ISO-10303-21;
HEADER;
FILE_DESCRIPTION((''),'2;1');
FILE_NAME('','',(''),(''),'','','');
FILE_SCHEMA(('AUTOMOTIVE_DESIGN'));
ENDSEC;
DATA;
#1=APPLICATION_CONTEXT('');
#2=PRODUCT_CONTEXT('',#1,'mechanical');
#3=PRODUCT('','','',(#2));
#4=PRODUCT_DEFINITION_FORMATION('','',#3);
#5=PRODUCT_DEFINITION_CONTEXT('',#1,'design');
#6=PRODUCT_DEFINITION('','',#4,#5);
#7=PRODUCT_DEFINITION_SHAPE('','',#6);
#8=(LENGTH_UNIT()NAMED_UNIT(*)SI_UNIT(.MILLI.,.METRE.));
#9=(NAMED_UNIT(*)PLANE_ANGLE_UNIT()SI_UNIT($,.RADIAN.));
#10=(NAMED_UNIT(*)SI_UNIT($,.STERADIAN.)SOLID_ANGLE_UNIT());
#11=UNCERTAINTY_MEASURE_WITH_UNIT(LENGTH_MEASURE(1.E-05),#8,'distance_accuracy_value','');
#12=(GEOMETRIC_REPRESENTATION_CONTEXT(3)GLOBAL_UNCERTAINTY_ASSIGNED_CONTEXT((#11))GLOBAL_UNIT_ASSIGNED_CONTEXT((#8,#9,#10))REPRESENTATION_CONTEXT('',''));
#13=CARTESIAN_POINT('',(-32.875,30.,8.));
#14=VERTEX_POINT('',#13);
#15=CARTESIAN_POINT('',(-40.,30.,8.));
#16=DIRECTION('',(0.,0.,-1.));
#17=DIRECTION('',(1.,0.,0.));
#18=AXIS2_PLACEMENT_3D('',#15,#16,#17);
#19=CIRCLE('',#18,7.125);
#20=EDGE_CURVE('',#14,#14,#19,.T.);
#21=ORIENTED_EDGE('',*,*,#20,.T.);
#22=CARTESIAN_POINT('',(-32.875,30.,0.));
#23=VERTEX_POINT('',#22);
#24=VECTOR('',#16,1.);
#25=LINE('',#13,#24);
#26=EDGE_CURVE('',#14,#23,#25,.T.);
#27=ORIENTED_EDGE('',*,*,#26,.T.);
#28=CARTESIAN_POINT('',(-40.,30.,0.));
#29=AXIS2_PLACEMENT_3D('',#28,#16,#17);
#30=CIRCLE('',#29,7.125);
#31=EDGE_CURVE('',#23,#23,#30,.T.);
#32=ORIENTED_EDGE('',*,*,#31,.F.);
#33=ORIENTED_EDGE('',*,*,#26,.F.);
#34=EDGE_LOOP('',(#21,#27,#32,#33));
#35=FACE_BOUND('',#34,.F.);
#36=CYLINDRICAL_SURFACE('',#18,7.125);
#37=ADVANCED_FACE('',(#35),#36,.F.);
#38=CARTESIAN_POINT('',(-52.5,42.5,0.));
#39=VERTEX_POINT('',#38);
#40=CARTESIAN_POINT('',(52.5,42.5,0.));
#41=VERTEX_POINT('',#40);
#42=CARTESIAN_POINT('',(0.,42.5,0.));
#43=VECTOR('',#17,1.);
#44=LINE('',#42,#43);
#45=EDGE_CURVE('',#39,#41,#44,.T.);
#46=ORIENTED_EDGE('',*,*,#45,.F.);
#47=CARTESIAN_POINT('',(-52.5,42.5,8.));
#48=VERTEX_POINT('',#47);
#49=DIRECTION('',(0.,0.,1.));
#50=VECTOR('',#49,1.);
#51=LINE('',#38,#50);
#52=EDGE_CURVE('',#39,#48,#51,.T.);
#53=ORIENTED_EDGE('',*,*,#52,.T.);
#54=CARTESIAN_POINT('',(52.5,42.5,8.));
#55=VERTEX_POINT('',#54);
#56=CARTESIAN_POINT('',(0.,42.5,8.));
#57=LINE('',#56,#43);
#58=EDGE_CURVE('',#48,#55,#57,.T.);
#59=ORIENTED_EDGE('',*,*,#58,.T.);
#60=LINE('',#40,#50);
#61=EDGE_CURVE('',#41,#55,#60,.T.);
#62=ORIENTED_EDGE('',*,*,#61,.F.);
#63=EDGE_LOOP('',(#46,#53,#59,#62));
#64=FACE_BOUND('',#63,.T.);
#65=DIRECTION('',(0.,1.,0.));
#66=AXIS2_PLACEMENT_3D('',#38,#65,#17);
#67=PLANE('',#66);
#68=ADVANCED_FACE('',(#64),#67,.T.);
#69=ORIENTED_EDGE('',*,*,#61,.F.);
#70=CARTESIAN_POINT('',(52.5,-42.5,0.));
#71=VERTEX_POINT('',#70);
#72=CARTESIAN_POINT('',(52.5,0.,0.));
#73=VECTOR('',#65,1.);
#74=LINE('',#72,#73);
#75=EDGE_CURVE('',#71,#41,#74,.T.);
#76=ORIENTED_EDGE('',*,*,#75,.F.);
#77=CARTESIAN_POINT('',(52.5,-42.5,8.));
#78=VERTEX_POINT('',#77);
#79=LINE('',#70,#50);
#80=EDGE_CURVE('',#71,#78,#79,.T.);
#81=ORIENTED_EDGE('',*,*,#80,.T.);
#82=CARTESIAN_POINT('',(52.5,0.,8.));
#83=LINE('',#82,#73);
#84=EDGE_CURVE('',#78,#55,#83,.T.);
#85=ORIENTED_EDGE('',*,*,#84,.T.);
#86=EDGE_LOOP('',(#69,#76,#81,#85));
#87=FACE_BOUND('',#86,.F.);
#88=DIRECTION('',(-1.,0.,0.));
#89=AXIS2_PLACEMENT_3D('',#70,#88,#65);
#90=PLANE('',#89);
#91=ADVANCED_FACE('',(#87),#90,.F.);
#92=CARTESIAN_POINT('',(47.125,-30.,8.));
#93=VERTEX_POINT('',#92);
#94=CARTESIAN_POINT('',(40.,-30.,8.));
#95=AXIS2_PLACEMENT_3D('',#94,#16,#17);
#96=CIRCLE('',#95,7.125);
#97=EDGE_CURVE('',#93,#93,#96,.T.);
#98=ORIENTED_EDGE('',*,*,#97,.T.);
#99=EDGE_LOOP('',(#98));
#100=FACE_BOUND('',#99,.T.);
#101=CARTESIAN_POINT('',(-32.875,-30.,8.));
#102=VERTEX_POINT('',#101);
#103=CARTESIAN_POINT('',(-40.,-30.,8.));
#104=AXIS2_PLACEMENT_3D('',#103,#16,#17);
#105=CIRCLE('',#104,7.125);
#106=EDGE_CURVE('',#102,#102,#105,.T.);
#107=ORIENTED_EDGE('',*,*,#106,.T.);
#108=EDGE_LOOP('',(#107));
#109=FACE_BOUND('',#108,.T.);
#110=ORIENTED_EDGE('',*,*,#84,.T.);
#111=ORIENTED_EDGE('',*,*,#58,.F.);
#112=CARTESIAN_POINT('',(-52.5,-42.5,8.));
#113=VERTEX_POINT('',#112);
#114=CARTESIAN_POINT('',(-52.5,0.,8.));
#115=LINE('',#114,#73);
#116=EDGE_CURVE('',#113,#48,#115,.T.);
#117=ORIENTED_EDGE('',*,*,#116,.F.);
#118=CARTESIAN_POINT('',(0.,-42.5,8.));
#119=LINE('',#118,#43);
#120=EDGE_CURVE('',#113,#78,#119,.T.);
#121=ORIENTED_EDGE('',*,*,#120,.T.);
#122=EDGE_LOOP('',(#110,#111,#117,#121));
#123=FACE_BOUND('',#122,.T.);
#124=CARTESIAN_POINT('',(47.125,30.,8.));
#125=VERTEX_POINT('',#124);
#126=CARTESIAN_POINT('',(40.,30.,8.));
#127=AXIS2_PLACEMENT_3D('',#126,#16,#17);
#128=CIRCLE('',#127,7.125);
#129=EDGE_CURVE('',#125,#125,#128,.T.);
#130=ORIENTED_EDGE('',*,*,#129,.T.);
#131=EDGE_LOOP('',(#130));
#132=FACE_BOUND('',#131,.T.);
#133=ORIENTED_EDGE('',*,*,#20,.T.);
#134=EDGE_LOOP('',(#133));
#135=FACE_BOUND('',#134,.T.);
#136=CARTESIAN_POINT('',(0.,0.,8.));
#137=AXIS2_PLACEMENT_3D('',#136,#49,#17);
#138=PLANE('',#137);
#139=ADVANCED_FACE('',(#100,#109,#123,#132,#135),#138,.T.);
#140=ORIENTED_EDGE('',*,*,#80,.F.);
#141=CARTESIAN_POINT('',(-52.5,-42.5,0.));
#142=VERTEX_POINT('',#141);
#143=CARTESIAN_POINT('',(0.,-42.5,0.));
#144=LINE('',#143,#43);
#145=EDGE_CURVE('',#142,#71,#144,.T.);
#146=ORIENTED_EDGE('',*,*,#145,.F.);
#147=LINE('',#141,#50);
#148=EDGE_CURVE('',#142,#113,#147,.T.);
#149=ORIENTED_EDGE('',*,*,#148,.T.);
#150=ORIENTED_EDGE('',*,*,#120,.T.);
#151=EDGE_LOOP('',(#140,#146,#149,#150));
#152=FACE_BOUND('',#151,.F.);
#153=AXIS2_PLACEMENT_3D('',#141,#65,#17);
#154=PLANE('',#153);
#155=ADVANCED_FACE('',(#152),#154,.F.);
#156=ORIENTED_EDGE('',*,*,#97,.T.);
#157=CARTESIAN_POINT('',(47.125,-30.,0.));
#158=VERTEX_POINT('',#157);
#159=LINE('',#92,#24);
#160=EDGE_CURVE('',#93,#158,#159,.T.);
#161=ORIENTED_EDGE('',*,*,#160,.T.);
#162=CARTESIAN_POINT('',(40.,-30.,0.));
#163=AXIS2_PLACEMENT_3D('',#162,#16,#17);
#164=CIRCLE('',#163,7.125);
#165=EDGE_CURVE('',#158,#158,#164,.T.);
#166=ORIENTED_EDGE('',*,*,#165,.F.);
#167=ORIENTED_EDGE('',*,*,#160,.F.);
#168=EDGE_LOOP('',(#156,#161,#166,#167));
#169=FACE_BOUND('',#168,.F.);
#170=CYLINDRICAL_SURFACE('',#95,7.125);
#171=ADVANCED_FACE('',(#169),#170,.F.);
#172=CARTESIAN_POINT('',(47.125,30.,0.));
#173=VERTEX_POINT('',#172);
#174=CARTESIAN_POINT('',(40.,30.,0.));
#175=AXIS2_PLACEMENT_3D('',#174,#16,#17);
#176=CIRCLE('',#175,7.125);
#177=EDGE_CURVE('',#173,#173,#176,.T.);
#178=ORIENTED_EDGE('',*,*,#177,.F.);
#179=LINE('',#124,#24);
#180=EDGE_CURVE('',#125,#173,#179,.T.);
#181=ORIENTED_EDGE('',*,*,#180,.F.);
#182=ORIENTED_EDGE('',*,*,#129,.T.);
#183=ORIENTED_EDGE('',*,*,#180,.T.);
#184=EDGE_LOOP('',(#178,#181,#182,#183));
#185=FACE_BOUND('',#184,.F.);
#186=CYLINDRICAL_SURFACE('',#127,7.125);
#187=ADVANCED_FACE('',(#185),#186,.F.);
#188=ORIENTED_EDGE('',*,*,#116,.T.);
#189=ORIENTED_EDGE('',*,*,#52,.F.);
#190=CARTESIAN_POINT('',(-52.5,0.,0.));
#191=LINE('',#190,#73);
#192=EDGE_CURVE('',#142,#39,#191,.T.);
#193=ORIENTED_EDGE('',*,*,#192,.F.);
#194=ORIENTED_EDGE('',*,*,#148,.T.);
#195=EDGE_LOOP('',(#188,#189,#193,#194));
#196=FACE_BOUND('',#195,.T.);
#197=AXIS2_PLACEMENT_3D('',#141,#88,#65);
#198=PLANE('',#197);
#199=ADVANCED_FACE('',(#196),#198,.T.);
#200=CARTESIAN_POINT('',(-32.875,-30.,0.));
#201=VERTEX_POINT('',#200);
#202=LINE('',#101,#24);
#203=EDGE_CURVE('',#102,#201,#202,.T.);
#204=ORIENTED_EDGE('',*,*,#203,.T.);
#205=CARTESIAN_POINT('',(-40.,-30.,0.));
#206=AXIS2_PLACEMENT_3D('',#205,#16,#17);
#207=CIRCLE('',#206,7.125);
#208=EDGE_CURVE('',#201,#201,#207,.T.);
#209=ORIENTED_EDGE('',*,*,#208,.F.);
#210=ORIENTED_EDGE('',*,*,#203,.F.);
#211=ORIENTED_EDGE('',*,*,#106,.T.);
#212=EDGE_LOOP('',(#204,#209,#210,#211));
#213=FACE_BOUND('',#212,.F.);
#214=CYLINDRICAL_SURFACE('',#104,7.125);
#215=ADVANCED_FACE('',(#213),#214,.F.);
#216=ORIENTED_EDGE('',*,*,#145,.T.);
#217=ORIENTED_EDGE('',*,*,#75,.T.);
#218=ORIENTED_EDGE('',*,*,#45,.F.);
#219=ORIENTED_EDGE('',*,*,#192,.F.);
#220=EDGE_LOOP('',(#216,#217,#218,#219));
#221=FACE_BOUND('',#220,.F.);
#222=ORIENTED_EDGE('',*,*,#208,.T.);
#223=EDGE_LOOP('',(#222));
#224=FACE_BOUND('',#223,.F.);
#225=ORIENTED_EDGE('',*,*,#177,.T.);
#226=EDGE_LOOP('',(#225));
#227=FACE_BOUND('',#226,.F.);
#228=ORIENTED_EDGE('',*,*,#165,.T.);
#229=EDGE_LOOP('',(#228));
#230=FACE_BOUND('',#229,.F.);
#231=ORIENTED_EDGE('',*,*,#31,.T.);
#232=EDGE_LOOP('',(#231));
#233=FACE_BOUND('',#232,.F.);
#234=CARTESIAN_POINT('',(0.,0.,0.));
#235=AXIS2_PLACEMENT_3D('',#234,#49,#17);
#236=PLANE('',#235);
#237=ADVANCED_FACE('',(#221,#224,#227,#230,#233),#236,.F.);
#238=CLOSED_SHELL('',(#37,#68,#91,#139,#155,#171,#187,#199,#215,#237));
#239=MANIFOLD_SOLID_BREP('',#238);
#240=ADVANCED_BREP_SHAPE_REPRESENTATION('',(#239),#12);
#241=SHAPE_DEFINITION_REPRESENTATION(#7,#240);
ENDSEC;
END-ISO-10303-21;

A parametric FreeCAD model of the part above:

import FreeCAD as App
import Part
import Sketcher
from FreeCAD import Vector

doc = App.newDocument("Part")
body = doc.addObject("PartDesign::Body", "Body")

sketch1 = doc.addObject("Sketcher::SketchObject", "Sketch")
body.addObject(sketch1)
sketch1.AttachmentSupport = (doc.XY_Plane, [""])
sketch1.MapMode = "FlatFace"
sketch1.addGeometry([
    Part.LineSegment(Vector(-52, 42, 0), Vector(-52, -42, 0)),
    Part.LineSegment(Vector(-52, -42, 0), Vector(52, -42, 0)),
    Part.LineSegment(Vector(52, -42, 0), Vector(52, 42, 0)),
    Part.LineSegment(Vector(52, 42, 0), Vector(-52, 42, 0)),
], False)
sketch1.addConstraint([
    Sketcher.Constraint("Coincident", 0, 2, 1, 1),
    Sketcher.Constraint("Coincident", 1, 2, 2, 1),
    Sketcher.Constraint("Coincident", 2, 2, 3, 1),
    Sketcher.Constraint("Coincident", 3, 2, 0, 1),
    Sketcher.Constraint("Vertical", 0),
    Sketcher.Constraint("Horizontal", 1),
    Sketcher.Constraint("Vertical", 2),
    Sketcher.Constraint("Horizontal", 3),
    Sketcher.Constraint("Symmetric", 0, 2, 2, 2, -1, 1),
    Sketcher.Constraint("DistanceX", 1, 1, 1, 2, 105.0),
    Sketcher.Constraint("DistanceY", 0, 2, 0, 1, 85.0),
])
pad1 = doc.addObject("PartDesign::Pad", "Pad")
body.addObject(pad1)
pad1.Profile = sketch1
pad1.Length = 8

sketch2 = doc.addObject("Sketcher::SketchObject", "Sketch001")
body.addObject(sketch2)
sketch2.AttachmentSupport = (doc.XY_Plane, [""])
sketch2.MapMode = "FlatFace"
sketch2.addGeometry([
    Part.Circle(Vector(-40, 30, 0), Vector(0, 0, 1), 4.4),
    Part.Circle(Vector(40, 30, 0), Vector(0, 0, 1), 4.4),
    Part.Circle(Vector(40, -30, 0), Vector(0, 0, 1), 4.4),
    Part.Circle(Vector(-40, -30, 0), Vector(0, 0, 1), 4.4),
], False)
sketch2.addConstraint([
    Sketcher.Constraint("Equal", 0, 1),
    Sketcher.Constraint("Equal", 1, 2),
    Sketcher.Constraint("Equal", 2, 3),
    Sketcher.Constraint("Symmetric", 0, 3, 2, 3, -1, 1),
    Sketcher.Constraint("Symmetric", 1, 3, 3, 3, -1, 1),
    Sketcher.Constraint("Symmetric", 0, 3, 1, 3, -2),
    Sketcher.Constraint("Diameter", 0, 8.8),
    Sketcher.Constraint("DistanceX", 0, 3, -1, 1, 40.0),
    Sketcher.Constraint("DistanceY", -1, 1, 0, 3, 30.0),
])
doc.recompute()
hole = doc.addObject("PartDesign::Hole", "Hole")
body.addObject(hole)
hole.Profile = sketch2
hole.ThreadType = "None"
hole.Diameter = 8.8
hole.DepthType = "ThroughAll"
hole.HoleCutType = "Counterbore"
hole.HoleCutDiameter = 14.25
hole.HoleCutDepth = 8
hole.Reversed = True

doc.recompute()
